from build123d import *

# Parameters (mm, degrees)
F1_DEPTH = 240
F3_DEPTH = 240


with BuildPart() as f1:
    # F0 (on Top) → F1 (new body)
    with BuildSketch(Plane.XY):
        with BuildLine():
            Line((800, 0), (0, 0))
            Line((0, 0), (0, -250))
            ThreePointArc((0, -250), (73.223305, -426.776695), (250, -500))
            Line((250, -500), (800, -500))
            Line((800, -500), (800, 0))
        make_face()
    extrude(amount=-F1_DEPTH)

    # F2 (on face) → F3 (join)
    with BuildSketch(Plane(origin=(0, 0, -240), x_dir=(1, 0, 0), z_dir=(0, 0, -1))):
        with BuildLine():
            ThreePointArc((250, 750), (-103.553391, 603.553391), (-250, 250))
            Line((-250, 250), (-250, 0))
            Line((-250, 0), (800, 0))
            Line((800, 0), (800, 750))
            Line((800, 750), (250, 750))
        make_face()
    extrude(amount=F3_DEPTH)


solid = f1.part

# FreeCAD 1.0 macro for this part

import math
import FreeCAD as App
import Part
import Sketcher

doc = App.newDocument("Part")
body = doc.addObject("PartDesign::Body", "Body")

sketch1 = body.newObject("Sketcher::SketchObject", "Sketch")
sketch1.AttachmentSupport = (doc.getObject("XY_Plane"), [""])
sketch1.MapMode = "FlatFace"
sketch1.addGeometry(Part.LineSegment(App.Vector(800, 0, 0), App.Vector(0, 0, 0)), False)
sketch1.addGeometry(Part.LineSegment(App.Vector(0, 0, 0), App.Vector(0, -250, 0)), False)
sketch1.addGeometry(Part.ArcOfCircle(Part.Circle(App.Vector(250, -250, 0), App.Vector(0, 0, 1), 250), math.radians(-180), math.radians(-90)), False)
sketch1.addGeometry(Part.LineSegment(App.Vector(250, -500, 0), App.Vector(800, -500, 0)), False)
sketch1.addGeometry(Part.LineSegment(App.Vector(800, -500, 0), App.Vector(800, 0, 0)), False)
sketch1.addConstraint(Sketcher.Constraint("Coincident", 0, 2, 1, 1))
sketch1.addConstraint(Sketcher.Constraint("Tangent", 1, 2, 2, 1))
sketch1.addConstraint(Sketcher.Constraint("Tangent", 2, 2, 3, 1))
sketch1.addConstraint(Sketcher.Constraint("Coincident", 3, 2, 4, 1))
sketch1.addConstraint(Sketcher.Constraint("Coincident", 4, 2, 0, 1))
sketch1.addConstraint(Sketcher.Constraint("Horizontal", 0))
sketch1.addConstraint(Sketcher.Constraint("Vertical", 1))
sketch1.addConstraint(Sketcher.Constraint("Horizontal", 3))
sketch1.addConstraint(Sketcher.Constraint("Vertical", 4))
sketch1.addConstraint(Sketcher.Constraint("Coincident", 0, 2, -1, 1))
sketch1.addConstraint(Sketcher.Constraint("Radius", 2, 250.000001))
sketch1.addConstraint(Sketcher.Constraint("DistanceX", 0, 2, 0, 1, 800.0))
sketch1.addConstraint(Sketcher.Constraint("DistanceY", 1, 2, 1, 1, 250.0))
pad1 = body.newObject("PartDesign::Pad", "Pad")
pad1.Profile = sketch1
pad1.Length = 240
pad1.Reversed = True

sketch2 = body.newObject("Sketcher::SketchObject", "Sketch001")
sketch2.AttachmentSupport = (doc.getObject("XY_Plane"), [""])
sketch2.MapMode = "FlatFace"
sketch2.AttachmentOffset = App.Placement(App.Vector(0, 0, -240), App.Rotation())
sketch2.addGeometry(Part.ArcOfCircle(Part.Circle(App.Vector(250, -250, 0), App.Vector(0, 0, 1), 500), math.radians(180), math.radians(270)), False)
sketch2.addGeometry(Part.LineSegment(App.Vector(-250, -250, 0), App.Vector(-250, 0, 0)), False)
sketch2.addGeometry(Part.LineSegment(App.Vector(-250, 0, 0), App.Vector(800, 0, 0)), False)
sketch2.addGeometry(Part.LineSegment(App.Vector(800, 0, 0), App.Vector(800, -750, 0)), False)
sketch2.addGeometry(Part.LineSegment(App.Vector(800, -750, 0), App.Vector(250, -750, 0)), False)
sketch2.addConstraint(Sketcher.Constraint("Tangent", 0, 1, 1, 1))
sketch2.addConstraint(Sketcher.Constraint("Coincident", 1, 2, 2, 1))
sketch2.addConstraint(Sketcher.Constraint("Coincident", 2, 2, 3, 1))
sketch2.addConstraint(Sketcher.Constraint("Coincident", 3, 2, 4, 1))
sketch2.addConstraint(Sketcher.Constraint("Tangent", 4, 2, 0, 2))
sketch2.addConstraint(Sketcher.Constraint("Vertical", 1))
sketch2.addConstraint(Sketcher.Constraint("Horizontal", 2))
sketch2.addConstraint(Sketcher.Constraint("Vertical", 3))
sketch2.addConstraint(Sketcher.Constraint("Horizontal", 4))
sketch2.addConstraint(Sketcher.Constraint("PointOnObject", 1, 2, -1))
sketch2.addConstraint(Sketcher.Constraint("Radius", 0, 499.999999))
sketch2.addConstraint(Sketcher.Constraint("DistanceX", 2, 1, 2, 2, 1050.0))
sketch2.addConstraint(Sketcher.Constraint("DistanceY", 1, 1, 1, 2, 250.0))
sketch2.addConstraint(Sketcher.Constraint("DistanceX", -1, 1, 0, 3, 249.999999))
pad2 = body.newObject("PartDesign::Pad", "Pad001")
pad2.Profile = sketch2
pad2.Length = 240
pad2.Reversed = True

doc.recompute()
